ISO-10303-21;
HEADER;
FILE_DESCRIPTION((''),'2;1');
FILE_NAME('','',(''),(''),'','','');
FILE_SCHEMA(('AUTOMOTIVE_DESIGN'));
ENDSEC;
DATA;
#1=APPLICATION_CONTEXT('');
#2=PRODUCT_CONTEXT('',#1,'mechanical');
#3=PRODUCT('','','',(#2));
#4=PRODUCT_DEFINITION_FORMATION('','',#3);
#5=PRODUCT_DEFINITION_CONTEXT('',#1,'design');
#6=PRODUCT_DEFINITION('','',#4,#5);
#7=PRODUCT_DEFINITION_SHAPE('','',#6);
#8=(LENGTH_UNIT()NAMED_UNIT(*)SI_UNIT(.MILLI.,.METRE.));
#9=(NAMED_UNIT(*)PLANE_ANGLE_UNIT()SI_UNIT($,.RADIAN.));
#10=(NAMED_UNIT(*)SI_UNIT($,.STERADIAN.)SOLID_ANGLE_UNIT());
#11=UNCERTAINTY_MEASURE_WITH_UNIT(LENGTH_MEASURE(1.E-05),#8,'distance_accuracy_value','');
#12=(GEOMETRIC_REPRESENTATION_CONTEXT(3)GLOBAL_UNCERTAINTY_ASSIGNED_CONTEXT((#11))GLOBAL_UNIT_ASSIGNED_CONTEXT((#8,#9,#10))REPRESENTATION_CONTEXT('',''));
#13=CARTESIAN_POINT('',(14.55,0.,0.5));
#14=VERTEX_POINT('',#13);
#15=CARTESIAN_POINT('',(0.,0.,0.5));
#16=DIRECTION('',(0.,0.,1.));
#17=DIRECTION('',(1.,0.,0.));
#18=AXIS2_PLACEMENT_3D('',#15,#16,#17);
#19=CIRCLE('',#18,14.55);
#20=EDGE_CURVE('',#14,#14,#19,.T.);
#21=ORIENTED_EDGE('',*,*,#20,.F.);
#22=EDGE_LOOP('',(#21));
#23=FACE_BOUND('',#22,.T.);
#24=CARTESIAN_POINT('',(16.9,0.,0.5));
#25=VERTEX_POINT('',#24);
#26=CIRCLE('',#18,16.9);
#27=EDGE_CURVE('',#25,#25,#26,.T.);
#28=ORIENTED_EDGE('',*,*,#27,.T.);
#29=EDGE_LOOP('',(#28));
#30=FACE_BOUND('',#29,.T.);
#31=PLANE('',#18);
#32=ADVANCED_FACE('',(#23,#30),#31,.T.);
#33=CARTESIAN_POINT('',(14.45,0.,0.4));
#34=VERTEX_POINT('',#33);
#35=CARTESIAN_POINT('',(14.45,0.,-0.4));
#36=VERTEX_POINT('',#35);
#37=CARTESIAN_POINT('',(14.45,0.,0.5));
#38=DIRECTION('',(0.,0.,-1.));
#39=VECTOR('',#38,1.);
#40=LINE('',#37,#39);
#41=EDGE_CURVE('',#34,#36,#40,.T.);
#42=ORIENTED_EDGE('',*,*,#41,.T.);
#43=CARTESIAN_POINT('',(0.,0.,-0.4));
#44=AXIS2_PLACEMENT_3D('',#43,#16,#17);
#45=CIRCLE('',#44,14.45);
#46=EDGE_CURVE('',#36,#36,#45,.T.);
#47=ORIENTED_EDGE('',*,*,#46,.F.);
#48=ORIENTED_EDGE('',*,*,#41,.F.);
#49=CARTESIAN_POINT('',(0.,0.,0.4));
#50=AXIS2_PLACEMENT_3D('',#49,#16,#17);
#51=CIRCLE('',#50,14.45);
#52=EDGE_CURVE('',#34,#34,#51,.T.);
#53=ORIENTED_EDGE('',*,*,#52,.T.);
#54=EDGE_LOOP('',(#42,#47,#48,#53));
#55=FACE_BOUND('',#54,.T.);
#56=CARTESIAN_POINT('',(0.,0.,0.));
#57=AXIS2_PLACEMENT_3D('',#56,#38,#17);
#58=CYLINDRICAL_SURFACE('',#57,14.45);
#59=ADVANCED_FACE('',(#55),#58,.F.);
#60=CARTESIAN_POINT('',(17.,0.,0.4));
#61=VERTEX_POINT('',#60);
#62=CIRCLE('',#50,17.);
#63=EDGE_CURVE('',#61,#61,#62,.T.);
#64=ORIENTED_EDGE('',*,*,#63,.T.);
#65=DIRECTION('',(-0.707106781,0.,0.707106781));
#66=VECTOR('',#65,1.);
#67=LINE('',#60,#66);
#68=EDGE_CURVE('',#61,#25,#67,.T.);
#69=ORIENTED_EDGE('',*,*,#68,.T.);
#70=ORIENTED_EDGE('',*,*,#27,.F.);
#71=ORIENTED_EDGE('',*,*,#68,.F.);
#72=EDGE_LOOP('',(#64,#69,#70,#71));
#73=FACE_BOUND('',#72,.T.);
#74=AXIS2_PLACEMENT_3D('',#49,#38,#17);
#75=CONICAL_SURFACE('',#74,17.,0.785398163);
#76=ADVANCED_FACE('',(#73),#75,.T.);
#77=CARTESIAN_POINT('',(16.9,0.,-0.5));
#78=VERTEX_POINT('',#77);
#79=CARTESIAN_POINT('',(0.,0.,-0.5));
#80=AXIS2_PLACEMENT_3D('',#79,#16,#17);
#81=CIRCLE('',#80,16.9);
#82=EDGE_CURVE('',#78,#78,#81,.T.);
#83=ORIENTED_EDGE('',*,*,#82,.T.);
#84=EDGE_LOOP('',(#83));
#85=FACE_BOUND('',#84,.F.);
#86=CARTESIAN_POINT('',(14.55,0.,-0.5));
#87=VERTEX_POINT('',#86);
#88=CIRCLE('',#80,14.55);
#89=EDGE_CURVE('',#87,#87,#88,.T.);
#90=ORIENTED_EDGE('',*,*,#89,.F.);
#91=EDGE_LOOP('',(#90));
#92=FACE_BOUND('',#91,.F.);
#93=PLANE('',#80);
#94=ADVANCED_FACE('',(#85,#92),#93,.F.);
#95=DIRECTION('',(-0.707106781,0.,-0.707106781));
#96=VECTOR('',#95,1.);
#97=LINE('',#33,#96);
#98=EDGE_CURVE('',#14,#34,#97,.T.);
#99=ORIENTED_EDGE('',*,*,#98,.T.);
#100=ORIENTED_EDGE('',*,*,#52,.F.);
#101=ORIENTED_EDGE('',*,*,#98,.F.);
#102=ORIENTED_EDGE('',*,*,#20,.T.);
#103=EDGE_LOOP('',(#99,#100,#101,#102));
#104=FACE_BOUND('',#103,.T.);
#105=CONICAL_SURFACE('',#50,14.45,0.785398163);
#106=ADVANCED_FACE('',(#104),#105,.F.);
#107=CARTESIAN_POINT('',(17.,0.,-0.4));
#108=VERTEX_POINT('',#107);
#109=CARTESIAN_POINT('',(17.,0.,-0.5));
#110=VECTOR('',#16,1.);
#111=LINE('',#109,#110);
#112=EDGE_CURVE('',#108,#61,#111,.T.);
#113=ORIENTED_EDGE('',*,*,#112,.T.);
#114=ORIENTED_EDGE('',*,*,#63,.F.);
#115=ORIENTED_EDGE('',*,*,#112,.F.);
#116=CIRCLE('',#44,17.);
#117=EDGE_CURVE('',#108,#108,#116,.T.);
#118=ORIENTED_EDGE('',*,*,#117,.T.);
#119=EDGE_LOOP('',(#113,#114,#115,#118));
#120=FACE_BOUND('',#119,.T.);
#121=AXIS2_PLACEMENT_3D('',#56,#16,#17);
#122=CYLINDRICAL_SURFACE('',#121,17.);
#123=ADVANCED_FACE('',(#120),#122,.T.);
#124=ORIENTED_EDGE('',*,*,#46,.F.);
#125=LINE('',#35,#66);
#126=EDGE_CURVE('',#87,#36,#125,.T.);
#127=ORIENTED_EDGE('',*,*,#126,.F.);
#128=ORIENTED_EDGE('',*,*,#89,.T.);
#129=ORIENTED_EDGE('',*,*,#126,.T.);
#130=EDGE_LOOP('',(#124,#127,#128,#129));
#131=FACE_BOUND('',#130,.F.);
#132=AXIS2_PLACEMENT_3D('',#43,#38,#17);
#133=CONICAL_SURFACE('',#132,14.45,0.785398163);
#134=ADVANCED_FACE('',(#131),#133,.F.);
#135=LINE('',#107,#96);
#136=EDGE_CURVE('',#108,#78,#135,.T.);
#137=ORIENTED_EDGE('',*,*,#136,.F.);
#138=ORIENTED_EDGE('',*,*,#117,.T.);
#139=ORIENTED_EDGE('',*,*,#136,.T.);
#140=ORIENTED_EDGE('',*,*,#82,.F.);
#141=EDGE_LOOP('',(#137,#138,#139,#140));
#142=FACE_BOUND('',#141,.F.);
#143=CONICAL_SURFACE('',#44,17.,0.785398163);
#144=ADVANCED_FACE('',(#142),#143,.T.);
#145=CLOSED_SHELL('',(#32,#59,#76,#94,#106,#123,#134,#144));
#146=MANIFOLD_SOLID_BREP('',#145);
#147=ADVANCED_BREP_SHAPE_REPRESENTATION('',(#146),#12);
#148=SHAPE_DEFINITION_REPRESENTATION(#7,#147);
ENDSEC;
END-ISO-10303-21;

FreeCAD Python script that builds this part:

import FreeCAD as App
import Part
import Sketcher
Q = App.Units.Quantity


def edges_at(feature, points):
    """Names of the edges that pass closest to the given points."""
    edges = feature.Shape.Edges
    near = lambda p: min(range(len(edges)), key=lambda i: edges[i].distToShape(Part.Vertex(*p))[0])
    return sorted({f"Edge{near(p) + 1}" for p in points})

doc = App.newDocument("Part")
params = doc.addObject("Spreadsheet::Sheet", "Params")
for row, (alias, value) in enumerate([
    ("sketch1_diameter", "34 mm"),
    ("sketch1_diameter2", "28.9 mm"),
    ("pad1_length", "1 mm"),
    ("chamfer_size", "0.1 mm"),
    ("chamfer2_size", "0.1 mm"),
], start=1):
    params.set(f"A{row}", alias)
    params.set(f"B{row}", "=" + value)
    params.setAlias(f"B{row}", alias)

body = doc.addObject("PartDesign::Body", "Body")

sketch1 = body.newObject("Sketcher::SketchObject", "Sketch")
sketch1.AttachmentSupport = (doc.getObject("XY_Plane"), [""])
sketch1.MapMode = "FlatFace"
sketch1.addGeometry([
    Part.Circle(App.Vector(0, 0, 0), App.Vector(0, 0, 1), 17),
    Part.Circle(App.Vector(0, 0, 0), App.Vector(0, 0, 1), 14.45),
], False)
sketch1.addConstraint([
    Sketcher.Constraint("Coincident", 0, 3, -1, 1),
    Sketcher.Constraint("Coincident", 1, 3, -1, 1),
    Sketcher.Constraint("Diameter", 0, Q("34 mm")),
    Sketcher.Constraint("Diameter", 1, Q("28.9 mm")),
])
sketch1.setExpression("Constraints[2]", "Params.sketch1_diameter")
sketch1.setExpression("Constraints[3]", "Params.sketch1_diameter2")
pad1 = body.newObject("PartDesign::Pad", "Pad")
pad1.Profile = sketch1
pad1.setExpression("Length", "Params.pad1_length")
pad1.Midplane = True
doc.recompute()

chamfer = body.newObject("PartDesign::Chamfer", "Chamfer")
chamfer.Base = (pad1, edges_at(pad1, [(-17, 0, 0.5), (-17, 0, -0.5)]))
chamfer.setExpression("Size", "Params.chamfer_size")
doc.recompute()

chamfer2 = body.newObject("PartDesign::Chamfer", "Chamfer001")
chamfer2.Base = (chamfer, edges_at(chamfer, [(-14.45, 0, 0.5), (-14.45, 0, -0.5)]))
chamfer2.setExpression("Size", "Params.chamfer2_size")

doc.recompute()
